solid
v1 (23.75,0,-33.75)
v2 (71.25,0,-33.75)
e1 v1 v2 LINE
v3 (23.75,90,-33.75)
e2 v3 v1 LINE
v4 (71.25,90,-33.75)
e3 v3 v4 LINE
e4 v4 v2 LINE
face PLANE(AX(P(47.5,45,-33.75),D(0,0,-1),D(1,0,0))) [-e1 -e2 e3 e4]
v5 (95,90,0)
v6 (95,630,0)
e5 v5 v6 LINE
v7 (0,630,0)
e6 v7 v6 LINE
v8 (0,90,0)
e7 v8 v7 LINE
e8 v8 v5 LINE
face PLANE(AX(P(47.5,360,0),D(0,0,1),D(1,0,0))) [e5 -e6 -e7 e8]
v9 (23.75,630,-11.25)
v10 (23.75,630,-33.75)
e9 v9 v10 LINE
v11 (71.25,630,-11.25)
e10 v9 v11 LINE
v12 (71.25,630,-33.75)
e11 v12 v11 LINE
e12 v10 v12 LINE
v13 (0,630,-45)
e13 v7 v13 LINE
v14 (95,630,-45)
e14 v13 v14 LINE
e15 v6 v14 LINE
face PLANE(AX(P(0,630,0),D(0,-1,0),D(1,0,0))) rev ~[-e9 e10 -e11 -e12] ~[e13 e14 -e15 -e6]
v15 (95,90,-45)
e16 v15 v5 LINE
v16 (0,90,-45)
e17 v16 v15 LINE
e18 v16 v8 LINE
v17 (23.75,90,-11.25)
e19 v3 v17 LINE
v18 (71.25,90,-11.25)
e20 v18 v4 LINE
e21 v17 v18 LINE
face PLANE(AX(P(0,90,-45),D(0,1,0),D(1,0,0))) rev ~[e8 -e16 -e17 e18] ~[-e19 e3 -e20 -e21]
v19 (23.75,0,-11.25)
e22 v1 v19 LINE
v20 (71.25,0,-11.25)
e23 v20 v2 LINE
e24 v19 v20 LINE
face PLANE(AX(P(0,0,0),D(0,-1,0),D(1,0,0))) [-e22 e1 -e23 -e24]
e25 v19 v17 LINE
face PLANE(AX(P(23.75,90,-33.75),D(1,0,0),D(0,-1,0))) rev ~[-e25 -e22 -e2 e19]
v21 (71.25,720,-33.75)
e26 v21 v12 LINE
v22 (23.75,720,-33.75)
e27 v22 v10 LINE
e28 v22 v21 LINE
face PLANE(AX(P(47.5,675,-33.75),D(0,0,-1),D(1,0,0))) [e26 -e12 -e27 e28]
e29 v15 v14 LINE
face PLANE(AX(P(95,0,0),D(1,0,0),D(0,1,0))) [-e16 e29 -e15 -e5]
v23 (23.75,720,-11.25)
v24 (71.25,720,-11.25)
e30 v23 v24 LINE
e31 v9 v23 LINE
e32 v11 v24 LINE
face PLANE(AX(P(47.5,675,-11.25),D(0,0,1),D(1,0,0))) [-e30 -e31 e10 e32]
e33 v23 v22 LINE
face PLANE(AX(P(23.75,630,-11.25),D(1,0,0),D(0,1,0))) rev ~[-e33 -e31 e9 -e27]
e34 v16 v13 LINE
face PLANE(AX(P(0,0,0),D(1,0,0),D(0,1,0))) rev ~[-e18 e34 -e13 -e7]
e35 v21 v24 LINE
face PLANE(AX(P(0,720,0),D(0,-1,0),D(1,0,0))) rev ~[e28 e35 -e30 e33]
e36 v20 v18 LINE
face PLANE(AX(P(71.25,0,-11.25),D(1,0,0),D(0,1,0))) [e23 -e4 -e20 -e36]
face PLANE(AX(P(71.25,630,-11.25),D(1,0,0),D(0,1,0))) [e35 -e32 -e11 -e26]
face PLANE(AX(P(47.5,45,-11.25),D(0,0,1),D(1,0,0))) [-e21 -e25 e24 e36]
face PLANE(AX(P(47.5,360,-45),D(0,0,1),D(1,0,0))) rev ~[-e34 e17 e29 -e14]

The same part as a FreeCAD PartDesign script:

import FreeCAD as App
import Part
import Sketcher
Q = App.Units.Quantity


def add_polygon(sketch, points):
    """Adds a closed chain of lines whose ends are joined by coincident constraints."""
    first, n = sketch.GeometryCount, len(points)
    for a, b in zip(points, points[1:] + points[:1]):
        sketch.addGeometry(Part.LineSegment(App.Vector(*a, 0), App.Vector(*b, 0)), False)
    for i in range(n):
        sketch.addConstraint(Sketcher.Constraint("Coincident", first + i, 2, first + (i + 1) % n, 1))

doc = App.newDocument("Part")
params = doc.addObject("Spreadsheet::Sheet", "Params")
for row, (alias, value) in enumerate([
    ("sketch1_width", "95 mm"),
    ("sketch1_height", "720 mm"),
    ("pad1_length", "45 mm"),
    ("sketch2_width", "95 mm"),
    ("sketch2_height", "90 mm"),
    ("pocket1_length", "11.25 mm"),
    ("sketch3_width", "95 mm"),
    ("sketch3_height", "90 mm"),
    ("pocket2_length", "11.25 mm"),
    ("sketch4_height", "90 mm"),
    ("sketch4_width", "23.75 mm"),
    ("pocket3_length", "11.25 mm"),
    ("sketch5_height", "90 mm"),
    ("sketch5_width", "23.75 mm"),
    ("pocket4_length", "11.25 mm"),
    ("sketch6_height", "90 mm"),
    ("sketch6_width", "23.75 mm"),
    ("pocket5_length", "11.25 mm"),
    ("sketch7_height", "90 mm"),
    ("sketch7_width", "23.75 mm"),
    ("pocket6_length", "11.25 mm"),
], start=1):
    params.set(f"A{row}", alias)
    params.set(f"B{row}", "=" + value)
    params.setAlias(f"B{row}", alias)

body = doc.addObject("PartDesign::Body", "Body")

# Sketch on XY plane
sketch1 = doc.addObject("Sketcher::SketchObject", "Sketch")
body.addObject(sketch1)
sketch1.AttachmentSupport = (doc.XY_Plane, [""])
sketch1.MapMode = "FlatFace"
add_polygon(sketch1, [(0, 720), (0, 0), (95, 0), (95, 720)])  # lines 0-3
sketch1.addConstraint(Sketcher.Constraint("Vertical", 0))
sketch1.addConstraint(Sketcher.Constraint("Horizontal", 1))
sketch1.addConstraint(Sketcher.Constraint("Vertical", 2))
sketch1.addConstraint(Sketcher.Constraint("Horizontal", 3))
sketch1.addConstraint(Sketcher.Constraint("Coincident", 0, 2, -1, 1))
sketch1.addConstraint(Sketcher.Constraint("DistanceX", 1, 1, 1, 2, Q("95 mm")))
sketch1.addConstraint(Sketcher.Constraint("DistanceY", 0, 2, 0, 1, Q("720 mm")))
sketch1.setExpression("Constraints[9]", "Params.sketch1_width")
sketch1.setExpression("Constraints[10]", "Params.sketch1_height")
pad1 = doc.addObject("PartDesign::Pad", "Pad")
body.addObject(pad1)
pad1.Profile = sketch1
pad1.setExpression("Length", "Params.pad1_length")
pad1.Reversed = True

# Sketch on XY plane
sketch2 = doc.addObject("Sketcher::SketchObject", "Sketch001")
body.addObject(sketch2)
sketch2.AttachmentSupport = (doc.XY_Plane, [""])
sketch2.MapMode = "FlatFace"
add_polygon(sketch2, [(0, 90), (0, 0), (95, 0), (95, 90)])  # lines 0-3
add_polygon(sketch2, [(0, 720), (0, 630), (95, 630), (95, 720)])  # lines 4-7
sketch2.addConstraint(Sketcher.Constraint("Vertical", 0))
sketch2.addConstraint(Sketcher.Constraint("Horizontal", 1))
sketch2.addConstraint(Sketcher.Constraint("Vertical", 2))
sketch2.addConstraint(Sketcher.Constraint("Horizontal", 3))
sketch2.addConstraint(Sketcher.Constraint("Vertical", 4))
sketch2.addConstraint(Sketcher.Constraint("Horizontal", 5))
sketch2.addConstraint(Sketcher.Constraint("Vertical", 6))
sketch2.addConstraint(Sketcher.Constraint("Horizontal", 7))
sketch2.addConstraint(Sketcher.Constraint("Coincident", 0, 2, -1, 1))
sketch2.addConstraint(Sketcher.Constraint("PointOnObject", 4, 2, -2))
sketch2.addConstraint(Sketcher.Constraint("Vertical", 2, 2, 5, 2))
sketch2.addConstraint(Sketcher.Constraint("Equal", 2, 4))
sketch2.addConstraint(Sketcher.Constraint("DistanceX", 1, 1, 1, 2, Q("95 mm")))
sketch2.addConstraint(Sketcher.Constraint("DistanceY", 0, 2, 0, 1, Q("90 mm")))
sketch2.addConstraint(Sketcher.Constraint("DistanceY", -1, 1, 4, 2, Q("630 mm")))
sketch2.setExpression("Constraints[20]", "Params.sketch2_width")
sketch2.setExpression("Constraints[21]", "Params.sketch2_height")
pocket1 = doc.addObject("PartDesign::Pocket", "Pocket")
body.addObject(pocket1)
pocket1.Profile = sketch2
pocket1.setExpression("Length", "Params.pocket1_length")

# Sketch on XY plane
sketch3 = doc.addObject("Sketcher::SketchObject", "Sketch002")
body.addObject(sketch3)
sketch3.AttachmentSupport = (doc.XY_Plane, [""])
sketch3.MapMode = "FlatFace"
sketch3.AttachmentOffset = App.Placement(App.Vector(0, 0, -45), App.Rotation())
add_polygon(sketch3, [(0, 0), (0, 90), (95, 90), (95, 0)])  # lines 0-3
add_polygon(sketch3, [(0, 630), (0, 720), (95, 720), (95, 630)])  # lines 4-7
sketch3.addConstraint(Sketcher.Constraint("Vertical", 0))
sketch3.addConstraint(Sketcher.Constraint("Horizontal", 1))
sketch3.addConstraint(Sketcher.Constraint("Vertical", 2))
sketch3.addConstraint(Sketcher.Constraint("Horizontal", 3))
sketch3.addConstraint(Sketcher.Constraint("Vertical", 4))
sketch3.addConstraint(Sketcher.Constraint("Horizontal", 5))
sketch3.addConstraint(Sketcher.Constraint("Vertical", 6))
sketch3.addConstraint(Sketcher.Constraint("Horizontal", 7))
sketch3.addConstraint(Sketcher.Constraint("Coincident", 3, 2, -1, 1))
sketch3.addConstraint(Sketcher.Constraint("PointOnObject", 4, 2, -2))
sketch3.addConstraint(Sketcher.Constraint("Vertical", 2, 2, 5, 2))
sketch3.addConstraint(Sketcher.Constraint("Equal", 2, 4))
sketch3.addConstraint(Sketcher.Constraint("DistanceX", 1, 1, 1, 2, Q("95 mm")))
sketch3.addConstraint(Sketcher.Constraint("DistanceY", 0, 1, 0, 2, Q("90 mm")))
sketch3.addConstraint(Sketcher.Constraint("DistanceY", -1, 1, 4, 2, Q("720 mm")))
sketch3.setExpression("Constraints[20]", "Params.sketch3_width")
sketch3.setExpression("Constraints[21]", "Params.sketch3_height")
pocket2 = doc.addObject("PartDesign::Pocket", "Pocket001")
body.addObject(pocket2)
pocket2.Profile = sketch3
pocket2.setExpression("Length", "Params.pocket2_length")
pocket2.Reversed = True

# Sketch on XY plane
sketch4 = doc.addObject("Sketcher::SketchObject", "Sketch003")
body.addObject(sketch4)
sketch4.AttachmentSupport = (doc.XY_Plane, [""])
sketch4.MapMode = "FlatFace"
sketch4.AttachmentOffset = App.Placement(App.Vector(0, 0, -11.25), App.Rotation())
add_polygon(sketch4, [(0, 90), (0, 0), (23.75, 0), (23.75, 90)])  # lines 0-3
add_polygon(sketch4, [(71.25, 90), (71.25, 0), (95, 0), (95, 90)])  # lines 4-7
sketch4.addConstraint(Sketcher.Constraint("Vertical", 0))
sketch4.addConstraint(Sketcher.Constraint("Horizontal", 1))
sketch4.addConstraint(Sketcher.Constraint("Vertical", 2))
sketch4.addConstraint(Sketcher.Constraint("Horizontal", 3))
sketch4.addConstraint(Sketcher.Constraint("Vertical", 4))
sketch4.addConstraint(Sketcher.Constraint("Horizontal", 5))
sketch4.addConstraint(Sketcher.Constraint("Vertical", 6))
sketch4.addConstraint(Sketcher.Constraint("Horizontal", 7))
sketch4.addConstraint(Sketcher.Constraint("Coincident", 0, 2, -1, 1))
sketch4.addConstraint(Sketcher.Constraint("PointOnObject", 4, 2, -1))
sketch4.addConstraint(Sketcher.Constraint("Horizontal", 3, 2, 6, 2))
sketch4.addConstraint(Sketcher.Constraint("Equal", 3, 5))
sketch4.addConstraint(Sketcher.Constraint("DistanceY", 0, 2, 0, 1, Q("90 mm")))
sketch4.addConstraint(Sketcher.Constraint("DistanceX", -1, 1, 5, 2, Q("95 mm")))
sketch4.addConstraint(Sketcher.Constraint("DistanceX", 1, 1, 1, 2, Q("23.75 mm")))
sketch4.setExpression("Constraints[20]", "Params.sketch4_height")
sketch4.setExpression("Constraints[22]", "Params.sketch4_width")
pocket3 = doc.addObject("PartDesign::Pocket", "Pocket002")
body.addObject(pocket3)
pocket3.Profile = sketch4
pocket3.setExpression("Length", "Params.pocket3_length")

# Sketch on XY plane
sketch5 = doc.addObject("Sketcher::SketchObject", "Sketch004")
body.addObject(sketch5)
sketch5.AttachmentSupport = (doc.XY_Plane, [""])
sketch5.MapMode = "FlatFace"
sketch5.AttachmentOffset = App.Placement(App.Vector(0, 0, -33.75), App.Rotation())
add_polygon(sketch5, [(71.25, 0), (71.25, 90), (95, 90), (95, 0)])  # lines 0-3
add_polygon(sketch5, [(0, 0), (0, 90), (23.75, 90), (23.75, 0)])  # lines 4-7
sketch5.addConstraint(Sketcher.Constraint("Vertical", 0))
sketch5.addConstraint(Sketcher.Constraint("Horizontal", 1))
sketch5.addConstraint(Sketcher.Constraint("Vertical", 2))
sketch5.addConstraint(Sketcher.Constraint("Horizontal", 3))
sketch5.addConstraint(Sketcher.Constraint("Vertical", 4))
sketch5.addConstraint(Sketcher.Constraint("Horizontal", 5))
sketch5.addConstraint(Sketcher.Constraint("Vertical", 6))
sketch5.addConstraint(Sketcher.Constraint("Horizontal", 7))
sketch5.addConstraint(Sketcher.Constraint("Coincident", 7, 2, -1, 1))
sketch5.addConstraint(Sketcher.Constraint("PointOnObject", 2, 2, -1))
sketch5.addConstraint(Sketcher.Constraint("Horizontal", 1, 2, 4, 2))
sketch5.addConstraint(Sketcher.Constraint("Equal", 3, 5))
sketch5.addConstraint(Sketcher.Constraint("DistanceY", 0, 1, 0, 2, Q("90 mm")))
sketch5.addConstraint(Sketcher.Constraint("DistanceX", -1, 1, 1, 2, Q("95 mm")))
sketch5.addConstraint(Sketcher.Constraint("DistanceX", 1, 1, 1, 2, Q("23.75 mm")))
sketch5.setExpression("Constraints[20]", "Params.sketch5_height")
sketch5.setExpression("Constraints[22]", "Params.sketch5_width")
pocket4 = doc.addObject("PartDesign::Pocket", "Pocket003")
body.addObject(pocket4)
pocket4.Profile = sketch5
pocket4.setExpression("Length", "Params.pocket4_length")
pocket4.Reversed = True

# Sketch on XY plane
sketch6 = doc.addObject("Sketcher::SketchObject", "Sketch005")
body.addObject(sketch6)
sketch6.AttachmentSupport = (doc.XY_Plane, [""])
sketch6.MapMode = "FlatFace"
sketch6.AttachmentOffset = App.Placement(App.Vector(0, 0, -11.25), App.Rotation())
add_polygon(sketch6, [(71.25, 720), (71.25, 630), (95, 630), (95, 720)])  # lines 0-3
add_polygon(sketch6, [(0, 720), (0, 630), (23.75, 630), (23.75, 720)])  # lines 4-7
sketch6.addConstraint(Sketcher.Constraint("Vertical", 0))
sketch6.addConstraint(Sketcher.Constraint("Horizontal", 1))
sketch6.addConstraint(Sketcher.Constraint("Vertical", 2))
sketch6.addConstraint(Sketcher.Constraint("Horizontal", 3))
sketch6.addConstraint(Sketcher.Constraint("Vertical", 4))
sketch6.addConstraint(Sketcher.Constraint("Horizontal", 5))
sketch6.addConstraint(Sketcher.Constraint("Vertical", 6))
sketch6.addConstraint(Sketcher.Constraint("Horizontal", 7))
sketch6.addConstraint(Sketcher.Constraint("PointOnObject", 4, 2, -2))
sketch6.addConstraint(Sketcher.Constraint("Horizontal", 1, 2, 4, 2))
sketch6.addConstraint(Sketcher.Constraint("Horizontal", 3, 2, 6, 2))
sketch6.addConstraint(Sketcher.Constraint("Equal", 3, 5))
sketch6.addConstraint(Sketcher.Constraint("DistanceY", 0, 2, 0, 1, Q("90 mm")))
sketch6.addConstraint(Sketcher.Constraint("DistanceY", -1, 1, 0, 2, Q("630 mm")))
sketch6.addConstraint(Sketcher.Constraint("DistanceX", -1, 1, 1, 2, Q("95 mm")))
sketch6.addConstraint(Sketcher.Constraint("DistanceX", 1, 1, 1, 2, Q("23.75 mm")))
sketch6.setExpression("Constraints[20]", "Params.sketch6_height")
sketch6.setExpression("Constraints[23]", "Params.sketch6_width")
pocket5 = doc.addObject("PartDesign::Pocket", "Pocket004")
body.addObject(pocket5)
pocket5.Profile = sketch6
pocket5.setExpression("Length", "Params.pocket5_length")

# Sketch on XY plane
sketch7 = doc.addObject("Sketcher::SketchObject", "Sketch006")
body.addObject(sketch7)
sketch7.AttachmentSupport = (doc.XY_Plane, [""])
sketch7.MapMode = "FlatFace"
sketch7.AttachmentOffset = App.Placement(App.Vector(0, 0, -33.75), App.Rotation())
add_polygon(sketch7, [(0, 630), (0, 720), (23.75, 720), (23.75, 630)])  # lines 0-3
add_polygon(sketch7, [(71.25, 630), (71.25, 720), (95, 720), (95, 630)])  # lines 4-7
sketch7.addConstraint(Sketcher.Constraint("Vertical", 0))
sketch7.addConstraint(Sketcher.Constraint("Horizontal", 1))
sketch7.addConstraint(Sketcher.Constraint("Vertical", 2))
sketch7.addConstraint(Sketcher.Constraint("Horizontal", 3))
sketch7.addConstraint(Sketcher.Constraint("Vertical", 4))
sketch7.addConstraint(Sketcher.Constraint("Horizontal", 5))
sketch7.addConstraint(Sketcher.Constraint("Vertical", 6))
sketch7.addConstraint(Sketcher.Constraint("Horizontal", 7))
sketch7.addConstraint(Sketcher.Constraint("PointOnObject", 0, 2, -2))
sketch7.addConstraint(Sketcher.Constraint("Horizontal", 1, 2, 4, 2))
sketch7.addConstraint(Sketcher.Constraint("Horizontal", 3, 2, 6, 2))
sketch7.addConstraint(Sketcher.Constraint("Equal", 3, 5))
sketch7.addConstraint(Sketcher.Constraint("DistanceY", 0, 1, 0, 2, Q("90 mm")))
sketch7.addConstraint(Sketcher.Constraint("DistanceY", -1, 1, 0, 2, Q("720 mm")))
sketch7.addConstraint(Sketcher.Constraint("DistanceX", -1, 1, 5, 2, Q("95 mm")))
sketch7.addConstraint(Sketcher.Constraint("DistanceX", 1, 1, 1, 2, Q("23.75 mm")))
sketch7.setExpression("Constraints[20]", "Params.sketch7_height")
sketch7.setExpression("Constraints[23]", "Params.sketch7_width")
pocket6 = doc.addObject("PartDesign::Pocket", "Pocket005")
body.addObject(pocket6)
pocket6.Profile = sketch7
pocket6.setExpression("Length", "Params.pocket6_length")
pocket6.Reversed = True

doc.recompute()
